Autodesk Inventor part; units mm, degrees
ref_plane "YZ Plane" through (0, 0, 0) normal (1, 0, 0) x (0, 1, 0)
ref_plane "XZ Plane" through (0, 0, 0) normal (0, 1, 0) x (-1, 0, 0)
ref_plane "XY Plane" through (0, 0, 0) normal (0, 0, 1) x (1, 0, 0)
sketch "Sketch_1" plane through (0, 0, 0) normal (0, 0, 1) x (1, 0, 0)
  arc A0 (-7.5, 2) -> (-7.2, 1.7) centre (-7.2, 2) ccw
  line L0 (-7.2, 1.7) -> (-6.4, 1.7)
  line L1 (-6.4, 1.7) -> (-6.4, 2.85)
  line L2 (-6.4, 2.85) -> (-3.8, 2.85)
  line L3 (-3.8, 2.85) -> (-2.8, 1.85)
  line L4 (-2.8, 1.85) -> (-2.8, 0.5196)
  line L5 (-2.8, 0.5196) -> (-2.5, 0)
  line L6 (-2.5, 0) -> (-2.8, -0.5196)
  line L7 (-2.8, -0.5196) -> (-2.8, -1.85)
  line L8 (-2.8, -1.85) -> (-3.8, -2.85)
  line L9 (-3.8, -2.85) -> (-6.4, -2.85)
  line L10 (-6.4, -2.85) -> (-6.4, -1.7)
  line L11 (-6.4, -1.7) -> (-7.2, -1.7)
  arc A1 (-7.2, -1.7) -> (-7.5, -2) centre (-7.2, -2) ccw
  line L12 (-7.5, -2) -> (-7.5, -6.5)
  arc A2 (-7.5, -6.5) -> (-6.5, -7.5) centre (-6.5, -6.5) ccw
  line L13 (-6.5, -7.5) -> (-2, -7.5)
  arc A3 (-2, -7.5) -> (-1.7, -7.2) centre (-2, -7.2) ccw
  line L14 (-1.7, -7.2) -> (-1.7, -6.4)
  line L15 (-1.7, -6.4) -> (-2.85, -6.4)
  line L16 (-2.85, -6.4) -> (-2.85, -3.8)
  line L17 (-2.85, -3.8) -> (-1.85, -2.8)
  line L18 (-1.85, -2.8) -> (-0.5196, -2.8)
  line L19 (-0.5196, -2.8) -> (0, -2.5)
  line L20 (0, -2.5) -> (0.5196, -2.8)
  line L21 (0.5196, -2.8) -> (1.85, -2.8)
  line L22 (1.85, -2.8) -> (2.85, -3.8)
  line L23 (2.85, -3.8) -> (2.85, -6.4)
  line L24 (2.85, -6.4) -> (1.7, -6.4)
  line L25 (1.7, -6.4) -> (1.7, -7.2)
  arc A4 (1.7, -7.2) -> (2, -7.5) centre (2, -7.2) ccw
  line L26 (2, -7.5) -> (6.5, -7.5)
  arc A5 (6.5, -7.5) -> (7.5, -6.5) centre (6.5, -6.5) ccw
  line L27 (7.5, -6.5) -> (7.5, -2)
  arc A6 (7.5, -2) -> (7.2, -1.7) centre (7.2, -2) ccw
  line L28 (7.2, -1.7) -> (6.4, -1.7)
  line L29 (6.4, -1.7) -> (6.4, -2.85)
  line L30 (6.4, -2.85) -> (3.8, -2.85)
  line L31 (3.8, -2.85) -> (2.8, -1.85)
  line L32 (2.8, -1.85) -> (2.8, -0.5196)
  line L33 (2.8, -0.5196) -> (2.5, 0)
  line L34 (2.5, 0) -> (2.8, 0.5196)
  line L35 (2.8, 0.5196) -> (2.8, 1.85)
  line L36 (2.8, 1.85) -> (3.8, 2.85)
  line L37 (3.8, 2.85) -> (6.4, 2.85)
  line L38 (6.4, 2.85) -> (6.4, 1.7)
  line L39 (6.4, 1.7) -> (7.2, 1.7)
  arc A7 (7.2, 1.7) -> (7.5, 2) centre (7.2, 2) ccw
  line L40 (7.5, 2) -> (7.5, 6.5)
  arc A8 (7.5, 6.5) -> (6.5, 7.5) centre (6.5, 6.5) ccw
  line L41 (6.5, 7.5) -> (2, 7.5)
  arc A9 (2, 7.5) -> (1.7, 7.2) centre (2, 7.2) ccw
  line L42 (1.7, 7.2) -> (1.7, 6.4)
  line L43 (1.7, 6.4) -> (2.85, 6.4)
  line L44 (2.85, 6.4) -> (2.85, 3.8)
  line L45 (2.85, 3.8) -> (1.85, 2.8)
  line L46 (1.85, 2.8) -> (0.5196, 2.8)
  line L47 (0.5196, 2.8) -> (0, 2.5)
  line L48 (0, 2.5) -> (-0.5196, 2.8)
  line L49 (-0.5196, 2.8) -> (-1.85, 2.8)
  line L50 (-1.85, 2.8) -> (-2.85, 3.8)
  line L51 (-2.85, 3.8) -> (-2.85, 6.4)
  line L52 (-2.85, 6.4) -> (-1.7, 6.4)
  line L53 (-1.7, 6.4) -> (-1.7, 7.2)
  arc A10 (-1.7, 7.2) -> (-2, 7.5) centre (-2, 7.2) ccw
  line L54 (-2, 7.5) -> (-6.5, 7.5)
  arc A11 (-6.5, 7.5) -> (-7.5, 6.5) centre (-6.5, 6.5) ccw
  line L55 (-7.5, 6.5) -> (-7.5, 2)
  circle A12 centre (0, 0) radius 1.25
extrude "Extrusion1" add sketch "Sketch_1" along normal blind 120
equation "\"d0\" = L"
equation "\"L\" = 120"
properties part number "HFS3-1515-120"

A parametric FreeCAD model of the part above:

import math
import FreeCAD as App
import Part
import Sketcher

V = App.Vector
Q = App.Units.Quantity

doc = App.newDocument("Part")
body = doc.addObject("PartDesign::Body", "Body")

sketch1 = body.newObject("Sketcher::SketchObject", "Sketch")
sketch1.AttachmentSupport = (doc.getObject("XY_Plane"), [""])
sketch1.MapMode = "FlatFace"
sketch1.addGeometry([
    Part.LineSegment(V(-7.5, 6.5, 0), V(-7.5, 2, 0)),
    Part.ArcOfCircle(Part.Circle(V(-7.2, 2, 0), V(0, 0, 1), 0.3), math.radians(180), math.radians(270)),
    Part.LineSegment(V(-7.2, 1.7, 0), V(-6.4, 1.7, 0)),
    Part.LineSegment(V(-6.4, 1.7, 0), V(-6.4, 2.85, 0)),
    Part.LineSegment(V(-6.4, 2.85, 0), V(-3.8, 2.85, 0)),
    Part.LineSegment(V(-3.8, 2.85, 0), V(-2.8, 1.85, 0)),
    Part.LineSegment(V(-2.8, 1.85, 0), V(-2.8, 0.52, 0)),
    Part.LineSegment(V(-2.8, 0.52, 0), V(-2.5, 0, 0)),
    Part.LineSegment(V(-2.5, 0, 0), V(-2.8, -0.52, 0)),
    Part.LineSegment(V(-2.8, -0.52, 0), V(-2.8, -1.85, 0)),
    Part.LineSegment(V(-2.8, -1.85, 0), V(-3.8, -2.85, 0)),
    Part.LineSegment(V(-3.8, -2.85, 0), V(-6.4, -2.85, 0)),
    Part.LineSegment(V(-6.4, -2.85, 0), V(-6.4, -1.7, 0)),
    Part.LineSegment(V(-6.4, -1.7, 0), V(-7.2, -1.7, 0)),
    Part.ArcOfCircle(Part.Circle(V(-7.2, -2, 0), V(0, 0, 1), 0.3), math.radians(90), math.radians(180)),
    Part.LineSegment(V(-7.5, -2, 0), V(-7.5, -6.5, 0)),
    Part.ArcOfCircle(Part.Circle(V(-6.5, -6.5, 0), V(0, 0, 1), 1), math.radians(180), math.radians(270)),
    Part.LineSegment(V(-6.5, -7.5, 0), V(-2, -7.5, 0)),
    Part.ArcOfCircle(Part.Circle(V(-2, -7.2, 0), V(0, 0, 1), 0.3), math.radians(-90), math.radians(0)),
    Part.LineSegment(V(-1.7, -7.2, 0), V(-1.7, -6.4, 0)),
    Part.LineSegment(V(-1.7, -6.4, 0), V(-2.85, -6.4, 0)),
    Part.LineSegment(V(-2.85, -6.4, 0), V(-2.85, -3.8, 0)),
    Part.LineSegment(V(-2.85, -3.8, 0), V(-1.85, -2.8, 0)),
    Part.LineSegment(V(-1.85, -2.8, 0), V(-0.52, -2.8, 0)),
    Part.LineSegment(V(-0.52, -2.8, 0), V(0, -2.5, 0)),
    Part.LineSegment(V(0, -2.5, 0), V(0.52, -2.8, 0)),
    Part.LineSegment(V(0.52, -2.8, 0), V(1.85, -2.8, 0)),
    Part.LineSegment(V(1.85, -2.8, 0), V(2.85, -3.8, 0)),
    Part.LineSegment(V(2.85, -3.8, 0), V(2.85, -6.4, 0)),
    Part.LineSegment(V(2.85, -6.4, 0), V(1.7, -6.4, 0)),
    Part.LineSegment(V(1.7, -6.4, 0), V(1.7, -7.2, 0)),
    Part.ArcOfCircle(Part.Circle(V(2, -7.2, 0), V(0, 0, 1), 0.3), math.radians(180), math.radians(270)),
    Part.LineSegment(V(2, -7.5, 0), V(6.5, -7.5, 0)),
    Part.ArcOfCircle(Part.Circle(V(6.5, -6.5, 0), V(0, 0, 1), 1), math.radians(-90), math.radians(0)),
    Part.LineSegment(V(7.5, -6.5, 0), V(7.5, -2, 0)),
    Part.ArcOfCircle(Part.Circle(V(7.2, -2, 0), V(0, 0, 1), 0.3), math.radians(0), math.radians(90)),
    Part.LineSegment(V(7.2, -1.7, 0), V(6.4, -1.7, 0)),
    Part.LineSegment(V(6.4, -1.7, 0), V(6.4, -2.85, 0)),
    Part.LineSegment(V(6.4, -2.85, 0), V(3.8, -2.85, 0)),
    Part.LineSegment(V(3.8, -2.85, 0), V(2.8, -1.85, 0)),
    Part.LineSegment(V(2.8, -1.85, 0), V(2.8, -0.52, 0)),
    Part.LineSegment(V(2.8, -0.52, 0), V(2.5, 0, 0)),
    Part.LineSegment(V(2.5, 0, 0), V(2.8, 0.52, 0)),
    Part.LineSegment(V(2.8, 0.52, 0), V(2.8, 1.85, 0)),
    Part.LineSegment(V(2.8, 1.85, 0), V(3.8, 2.85, 0)),
    Part.LineSegment(V(3.8, 2.85, 0), V(6.4, 2.85, 0)),
    Part.LineSegment(V(6.4, 2.85, 0), V(6.4, 1.7, 0)),
    Part.LineSegment(V(6.4, 1.7, 0), V(7.2, 1.7, 0)),
    Part.ArcOfCircle(Part.Circle(V(7.2, 2, 0), V(0, 0, 1), 0.3), math.radians(-90), math.radians(0)),
    Part.LineSegment(V(7.5, 2, 0), V(7.5, 6.5, 0)),
    Part.ArcOfCircle(Part.Circle(V(6.5, 6.5, 0), V(0, 0, 1), 1), math.radians(0), math.radians(90)),
    Part.LineSegment(V(6.5, 7.5, 0), V(2, 7.5, 0)),
    Part.ArcOfCircle(Part.Circle(V(2, 7.2, 0), V(0, 0, 1), 0.3), math.radians(90), math.radians(180)),
    Part.LineSegment(V(1.7, 7.2, 0), V(1.7, 6.4, 0)),
    Part.LineSegment(V(1.7, 6.4, 0), V(2.85, 6.4, 0)),
    Part.LineSegment(V(2.85, 6.4, 0), V(2.85, 3.8, 0)),
    Part.LineSegment(V(2.85, 3.8, 0), V(1.85, 2.8, 0)),
    Part.LineSegment(V(1.85, 2.8, 0), V(0.52, 2.8, 0)),
    Part.LineSegment(V(0.52, 2.8, 0), V(0, 2.5, 0)),
    Part.LineSegment(V(0, 2.5, 0), V(-0.52, 2.8, 0)),
    Part.LineSegment(V(-0.52, 2.8, 0), V(-1.85, 2.8, 0)),
    Part.LineSegment(V(-1.85, 2.8, 0), V(-2.85, 3.8, 0)),
    Part.LineSegment(V(-2.85, 3.8, 0), V(-2.85, 6.4, 0)),
    Part.LineSegment(V(-2.85, 6.4, 0), V(-1.7, 6.4, 0)),
    Part.LineSegment(V(-1.7, 6.4, 0), V(-1.7, 7.2, 0)),
    Part.ArcOfCircle(Part.Circle(V(-2, 7.2, 0), V(0, 0, 1), 0.3), math.radians(0), math.radians(90)),
    Part.LineSegment(V(-2, 7.5, 0), V(-6.5, 7.5, 0)),
    Part.ArcOfCircle(Part.Circle(V(-6.5, 6.5, 0), V(0, 0, 1), 1), math.radians(90), math.radians(180)),
    Part.Circle(V(0, 0, 0), V(0, 0, 1), 1.25),
], False)
sketch1.addConstraint([
    Sketcher.Constraint("Tangent", 0, 2, 1, 1),
    Sketcher.Constraint("Tangent", 1, 2, 2, 1),
    Sketcher.Constraint("Coincident", 2, 2, 3, 1),
    Sketcher.Constraint("Coincident", 3, 2, 4, 1),
    Sketcher.Constraint("Coincident", 4, 2, 5, 1),
    Sketcher.Constraint("Coincident", 5, 2, 6, 1),
    Sketcher.Constraint("Coincident", 6, 2, 7, 1),
    Sketcher.Constraint("Coincident", 7, 2, 8, 1),
    Sketcher.Constraint("Coincident", 8, 2, 9, 1),
    Sketcher.Constraint("Coincident", 9, 2, 10, 1),
    Sketcher.Constraint("Coincident", 10, 2, 11, 1),
    Sketcher.Constraint("Coincident", 11, 2, 12, 1),
    Sketcher.Constraint("Coincident", 12, 2, 13, 1),
    Sketcher.Constraint("Tangent", 13, 2, 14, 1),
    Sketcher.Constraint("Tangent", 14, 2, 15, 1),
    Sketcher.Constraint("Tangent", 15, 2, 16, 1),
    Sketcher.Constraint("Tangent", 16, 2, 17, 1),
    Sketcher.Constraint("Tangent", 17, 2, 18, 1),
    Sketcher.Constraint("Tangent", 18, 2, 19, 1),
    Sketcher.Constraint("Coincident", 19, 2, 20, 1),
    Sketcher.Constraint("Coincident", 20, 2, 21, 1),
    Sketcher.Constraint("Coincident", 21, 2, 22, 1),
    Sketcher.Constraint("Coincident", 22, 2, 23, 1),
    Sketcher.Constraint("Coincident", 23, 2, 24, 1),
    Sketcher.Constraint("Coincident", 24, 2, 25, 1),
    Sketcher.Constraint("Coincident", 25, 2, 26, 1),
    Sketcher.Constraint("Coincident", 26, 2, 27, 1),
    Sketcher.Constraint("Coincident", 27, 2, 28, 1),
    Sketcher.Constraint("Coincident", 28, 2, 29, 1),
    Sketcher.Constraint("Coincident", 29, 2, 30, 1),
    Sketcher.Constraint("Tangent", 30, 2, 31, 1),
    Sketcher.Constraint("Tangent", 31, 2, 32, 1),
    Sketcher.Constraint("Tangent", 32, 2, 33, 1),
    Sketcher.Constraint("Tangent", 33, 2, 34, 1),
    Sketcher.Constraint("Tangent", 34, 2, 35, 1),
    Sketcher.Constraint("Tangent", 35, 2, 36, 1),
    Sketcher.Constraint("Coincident", 36, 2, 37, 1),
    Sketcher.Constraint("Coincident", 37, 2, 38, 1),
    Sketcher.Constraint("Coincident", 38, 2, 39, 1),
    Sketcher.Constraint("Coincident", 39, 2, 40, 1),
    Sketcher.Constraint("Coincident", 40, 2, 41, 1),
    Sketcher.Constraint("Coincident", 41, 2, 42, 1),
    Sketcher.Constraint("Coincident", 42, 2, 43, 1),
    Sketcher.Constraint("Coincident", 43, 2, 44, 1),
    Sketcher.Constraint("Coincident", 44, 2, 45, 1),
    Sketcher.Constraint("Coincident", 45, 2, 46, 1),
    Sketcher.Constraint("Coincident", 46, 2, 47, 1),
    Sketcher.Constraint("Tangent", 47, 2, 48, 1),
    Sketcher.Constraint("Tangent", 48, 2, 49, 1),
    Sketcher.Constraint("Tangent", 49, 2, 50, 1),
    Sketcher.Constraint("Tangent", 50, 2, 51, 1),
    Sketcher.Constraint("Tangent", 51, 2, 52, 1),
    Sketcher.Constraint("Tangent", 52, 2, 53, 1),
    Sketcher.Constraint("Coincident", 53, 2, 54, 1),
    Sketcher.Constraint("Coincident", 54, 2, 55, 1),
    Sketcher.Constraint("Coincident", 55, 2, 56, 1),
    Sketcher.Constraint("Coincident", 56, 2, 57, 1),
    Sketcher.Constraint("Coincident", 57, 2, 58, 1),
    Sketcher.Constraint("Coincident", 58, 2, 59, 1),
    Sketcher.Constraint("Coincident", 59, 2, 60, 1),
    Sketcher.Constraint("Coincident", 60, 2, 61, 1),
    Sketcher.Constraint("Coincident", 61, 2, 62, 1),
    Sketcher.Constraint("Coincident", 62, 2, 63, 1),
    Sketcher.Constraint("Coincident", 63, 2, 64, 1),
    Sketcher.Constraint("Tangent", 64, 2, 65, 1),
    Sketcher.Constraint("Tangent", 65, 2, 66, 1),
    Sketcher.Constraint("Tangent", 66, 2, 67, 1),
    Sketcher.Constraint("Tangent", 67, 2, 0, 1),
    Sketcher.Constraint("Vertical", 0),
    Sketcher.Constraint("Horizontal", 2),
    Sketcher.Constraint("Vertical", 3),
    Sketcher.Constraint("Horizontal", 4),
    Sketcher.Constraint("Vertical", 6),
    Sketcher.Constraint("Vertical", 9),
    Sketcher.Constraint("Horizontal", 11),
    Sketcher.Constraint("Vertical", 12),
    Sketcher.Constraint("Horizontal", 13),
    Sketcher.Constraint("Vertical", 15),
    Sketcher.Constraint("Horizontal", 17),
    Sketcher.Constraint("Vertical", 19),
    Sketcher.Constraint("Horizontal", 20),
    Sketcher.Constraint("Vertical", 21),
    Sketcher.Constraint("Horizontal", 23),
    Sketcher.Constraint("Horizontal", 26),
    Sketcher.Constraint("Vertical", 28),
    Sketcher.Constraint("Horizontal", 29),
    Sketcher.Constraint("Vertical", 30),
    Sketcher.Constraint("Horizontal", 32),
    Sketcher.Constraint("Vertical", 34),
    Sketcher.Constraint("Horizontal", 36),
    Sketcher.Constraint("Vertical", 37),
    Sketcher.Constraint("Horizontal", 38),
    Sketcher.Constraint("Vertical", 40),
    Sketcher.Constraint("Vertical", 43),
    Sketcher.Constraint("Horizontal", 45),
    Sketcher.Constraint("Vertical", 46),
    Sketcher.Constraint("Horizontal", 47),
    Sketcher.Constraint("Vertical", 49),
    Sketcher.Constraint("Horizontal", 51),
    Sketcher.Constraint("Vertical", 53),
    Sketcher.Constraint("Horizontal", 54),
    Sketcher.Constraint("Vertical", 55),
    Sketcher.Constraint("Horizontal", 57),
    Sketcher.Constraint("Horizontal", 60),
    Sketcher.Constraint("Vertical", 62),
    Sketcher.Constraint("Horizontal", 63),
    Sketcher.Constraint("Vertical", 64),
    Sketcher.Constraint("Horizontal", 66),
    Sketcher.Constraint("Coincident", 68, 3, -1, 1),
    Sketcher.Constraint("Equal", 1, 14),
    Sketcher.Constraint("Equal", 14, 18),
    Sketcher.Constraint("Equal", 18, 31),
    Sketcher.Constraint("Equal", 16, 33),
    Sketcher.Constraint("Equal", 31, 35),
    Sketcher.Constraint("Equal", 35, 48),
    Sketcher.Constraint("Equal", 33, 50),
    Sketcher.Constraint("Equal", 48, 52),
    Sketcher.Constraint("Equal", 52, 65),
    Sketcher.Constraint("Equal", 50, 67),
    Sketcher.Constraint("Symmetric", 1, 3, 35, 3, -1, 1),
    Sketcher.Constraint("Symmetric", 14, 3, 48, 3, -1, 1),
    Sketcher.Constraint("Symmetric", 18, 3, 52, 3, -1, 1),
    Sketcher.Constraint("Symmetric", 31, 3, 65, 3, -1, 1),
    Sketcher.Constraint("Symmetric", 3, 2, 37, 2, -1, 1),
    Sketcher.Constraint("Symmetric", 5, 2, 39, 2, -1, 1),
    Sketcher.Constraint("Symmetric", 7, 2, 41, 2, -1, 1),
    Sketcher.Constraint("Symmetric", 8, 2, 42, 2, -1, 1),
    Sketcher.Constraint("Symmetric", 10, 2, 44, 2, -1, 1),
    Sketcher.Constraint("Symmetric", 20, 2, 54, 2, -1, 1),
    Sketcher.Constraint("Symmetric", 22, 2, 56, 2, -1, 1),
    Sketcher.Constraint("Symmetric", 24, 2, 58, 2, -1, 1),
    Sketcher.Constraint("Symmetric", 25, 2, 59, 2, -1, 1),
    Sketcher.Constraint("Symmetric", 27, 2, 61, 2, -1, 1),
    Sketcher.Constraint("Symmetric", 18, 3, 31, 3, -2),
    Sketcher.Constraint("Symmetric", 14, 3, 35, 3, -2),
    Sketcher.Constraint("Symmetric", 23, 2, 25, 2, -2),
    Sketcher.Constraint("Symmetric", 21, 2, 27, 2, -2),
    Sketcher.Constraint("Symmetric", 11, 2, 37, 2, -2),
    Sketcher.Constraint("Symmetric", 9, 2, 39, 2, -2),
    Sketcher.Constraint("PointOnObject", 7, 2, -1),
    Sketcher.Constraint("PointOnObject", 24, 2, -2),
    Sketcher.Constraint("Perpendicular", 5, 10),
    Sketcher.Constraint("Parallel", 10, 22),
    Sketcher.Constraint("Perpendicular", 7, 24),
    Sketcher.Constraint("Perpendicular", 8, 25),
    Sketcher.Constraint("Perpendicular", 22, 27),
    Sketcher.Constraint("Parallel", 27, 39),
    Sketcher.Constraint("Perpendicular", 24, 41),
    Sketcher.Constraint("Perpendicular", 39, 44),
    Sketcher.Constraint("Parallel", 44, 56),
    Sketcher.Constraint("Perpendicular", 41, 58),
    Sketcher.Constraint("Perpendicular", 56, 61),
    Sketcher.Constraint("Horizontal", 20, 2, 28, 2),
    Sketcher.Constraint("Horizontal", 54, 2, 62, 2),
    Sketcher.Constraint("Vertical", 4, 2, 10, 2),
    Sketcher.Constraint("Vertical", 37, 2, 45, 2),
    Sketcher.Constraint("Equal", 66, 0),
    Sketcher.Constraint("Equal", 63, 3),
    Sketcher.Constraint("Equal", 60, 6),
    Sketcher.Constraint("Equal", 47, 19),
    Sketcher.Constraint("Equal", 45, 21),
    Sketcher.Constraint("Equal", 10, 22),
    Sketcher.Constraint("Equal", 8, 24),
    Sketcher.Constraint("Radius", 16, Q("1 mm")),
    Sketcher.Constraint("Diameter", 68, Q("2.5 mm")),
    Sketcher.Constraint("Radius", 1, Q("0.3 mm")),
    Sketcher.Constraint("Angle", 7, Q("-59.9993 deg")),
    Sketcher.Constraint("DistanceX", 2, 1, 2, 2, Q("0.8 mm")),
    Sketcher.Constraint("DistanceX", 4, 1, 4, 2, Q("2.6 mm")),
    Sketcher.Constraint("DistanceX", 17, 1, 17, 2, Q("4.5 mm")),
    Sketcher.Constraint("DistanceY", -1, 1, 1, 3, Q("2 mm")),
    Sketcher.Constraint("Distance", 7, Q("0.6 mm")),
    Sketcher.Constraint("DistanceX", 20, 2, 20, 1, Q("1.15 mm")),
    Sketcher.Constraint("DistanceX", 5, 2, -1, 1, Q("2.8 mm")),
])
pad1 = body.newObject("PartDesign::Pad", "Pad")
pad1.Profile = sketch1
pad1.Length = 120

doc.recompute()
